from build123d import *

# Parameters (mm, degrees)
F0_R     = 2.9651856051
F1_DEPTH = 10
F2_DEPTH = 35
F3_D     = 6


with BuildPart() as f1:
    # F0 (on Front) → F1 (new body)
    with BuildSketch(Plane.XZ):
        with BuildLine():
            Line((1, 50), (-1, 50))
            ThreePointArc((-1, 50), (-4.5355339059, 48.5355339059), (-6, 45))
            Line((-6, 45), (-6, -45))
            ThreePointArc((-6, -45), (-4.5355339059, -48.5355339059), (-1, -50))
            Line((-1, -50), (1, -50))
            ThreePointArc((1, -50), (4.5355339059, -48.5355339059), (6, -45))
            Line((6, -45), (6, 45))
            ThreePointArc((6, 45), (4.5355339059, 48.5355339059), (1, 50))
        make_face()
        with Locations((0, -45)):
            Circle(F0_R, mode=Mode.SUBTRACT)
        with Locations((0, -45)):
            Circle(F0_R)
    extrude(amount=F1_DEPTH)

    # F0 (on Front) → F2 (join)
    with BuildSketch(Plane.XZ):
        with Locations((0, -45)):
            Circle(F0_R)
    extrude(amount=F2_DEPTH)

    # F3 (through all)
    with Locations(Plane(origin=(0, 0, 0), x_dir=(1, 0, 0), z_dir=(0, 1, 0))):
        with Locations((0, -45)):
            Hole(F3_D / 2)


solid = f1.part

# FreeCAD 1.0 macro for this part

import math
import FreeCAD as App
import Part
import Sketcher

V = App.Vector
Q = App.Units.Quantity

doc = App.newDocument("Part")
params = doc.addObject("Spreadsheet::Sheet", "Params")
for row, (alias, value) in enumerate([
    ("sketch1_radius", "5 mm"),
    ("sketch1_width", "2 mm"),
    ("sketch1_height", "90 mm"),
    ("pad1_length", "10 mm"),
    ("pad2_length", "35 mm"),
    ("sketch3_diameter", "6 mm"),
    ("hole_diameter", "6 mm"),
], start=1):
    params.set(f"A{row}", alias)
    params.set(f"B{row}", "=" + value)
    params.setAlias(f"B{row}", alias)

body = doc.addObject("PartDesign::Body", "Body")

sketch1 = body.newObject("Sketcher::SketchObject", "Sketch")
sketch1.AttachmentSupport = (doc.getObject("XZ_Plane"), [""])
sketch1.MapMode = "FlatFace"
sketch1.addGeometry([
    Part.LineSegment(V(1, 50, 0), V(-1, 50, 0)),
    Part.ArcOfCircle(Part.Circle(V(-1, 45, 0), V(0, 0, 1), 5), math.radians(90), math.radians(180)),
    Part.LineSegment(V(-6, 45, 0), V(-6, -45, 0)),
    Part.ArcOfCircle(Part.Circle(V(-1, -45, 0), V(0, 0, 1), 5), math.radians(180), math.radians(270)),
    Part.LineSegment(V(-1, -50, 0), V(1, -50, 0)),
    Part.ArcOfCircle(Part.Circle(V(1, -45, 0), V(0, 0, 1), 5), math.radians(-90), math.radians(0)),
    Part.LineSegment(V(6, -45, 0), V(6, 45, 0)),
    Part.ArcOfCircle(Part.Circle(V(1, 45, 0), V(0, 0, 1), 5), math.radians(0), math.radians(90)),
], False)
sketch1.addConstraint([
    Sketcher.Constraint("Tangent", 0, 2, 1, 1),
    Sketcher.Constraint("Tangent", 1, 2, 2, 1),
    Sketcher.Constraint("Tangent", 2, 2, 3, 1),
    Sketcher.Constraint("Tangent", 3, 2, 4, 1),
    Sketcher.Constraint("Tangent", 4, 2, 5, 1),
    Sketcher.Constraint("Tangent", 5, 2, 6, 1),
    Sketcher.Constraint("Tangent", 6, 2, 7, 1),
    Sketcher.Constraint("Tangent", 7, 2, 0, 1),
    Sketcher.Constraint("Horizontal", 0),
    Sketcher.Constraint("Vertical", 2),
    Sketcher.Constraint("Horizontal", 4),
    Sketcher.Constraint("Vertical", 6),
    Sketcher.Constraint("Equal", 1, 3),
    Sketcher.Constraint("Equal", 3, 5),
    Sketcher.Constraint("Equal", 5, 7),
    Sketcher.Constraint("Symmetric", 1, 3, 5, 3, -1, 1),
    Sketcher.Constraint("Radius", 1, Q("5 mm")),
    Sketcher.Constraint("DistanceX", 0, 2, 0, 1, Q("2 mm")),
    Sketcher.Constraint("DistanceY", 2, 2, 2, 1, Q("90 mm")),
])
sketch1.setExpression("Constraints[16]", "Params.sketch1_radius")
sketch1.setExpression("Constraints[17]", "Params.sketch1_width")
sketch1.setExpression("Constraints[18]", "Params.sketch1_height")
pad1 = body.newObject("PartDesign::Pad", "Pad")
pad1.Profile = sketch1
pad1.setExpression("Length", "Params.pad1_length")

sketch2 = body.newObject("Sketcher::SketchObject", "Sketch001")
sketch2.AttachmentSupport = (doc.getObject("XZ_Plane"), [""])
sketch2.MapMode = "FlatFace"
sketch2.addGeometry(Part.Circle(V(0, -45, 0), V(0, 0, 1), 3), False)
sketch2.addConstraint([
    Sketcher.Constraint("PointOnObject", 0, 3, -2),
    Sketcher.Constraint("DistanceY", 0, 3, -1, 1, Q("45 mm")),
    Sketcher.Constraint("Diameter", 0, Q("5.930371 mm")),
])
pad2 = body.newObject("PartDesign::Pad", "Pad001")
pad2.Profile = sketch2
pad2.setExpression("Length", "Params.pad2_length")

sketch3 = body.newObject("Sketcher::SketchObject", "Sketch002")
sketch3.AttachmentSupport = (doc.getObject("XZ_Plane"), [""])
sketch3.MapMode = "FlatFace"
sketch3.addGeometry(Part.Circle(V(0, 45, 0), V(0, 0, 1), 3), False)
sketch3.addConstraint([
    Sketcher.Constraint("PointOnObject", 0, 3, -2),
    Sketcher.Constraint("Diameter", 0, Q("6 mm")),
    Sketcher.Constraint("DistanceY", -1, 1, 0, 3, Q("45 mm")),
])
sketch3.setExpression("Constraints[1]", "Params.sketch3_diameter")
doc.recompute()
hole = body.newObject("PartDesign::Hole", "Hole")
hole.Profile = sketch3
hole.ThreadType = "None"
hole.setExpression("Diameter", "Params.hole_diameter")
hole.DepthType = "ThroughAll"
hole.Reversed = True

doc.recompute()
